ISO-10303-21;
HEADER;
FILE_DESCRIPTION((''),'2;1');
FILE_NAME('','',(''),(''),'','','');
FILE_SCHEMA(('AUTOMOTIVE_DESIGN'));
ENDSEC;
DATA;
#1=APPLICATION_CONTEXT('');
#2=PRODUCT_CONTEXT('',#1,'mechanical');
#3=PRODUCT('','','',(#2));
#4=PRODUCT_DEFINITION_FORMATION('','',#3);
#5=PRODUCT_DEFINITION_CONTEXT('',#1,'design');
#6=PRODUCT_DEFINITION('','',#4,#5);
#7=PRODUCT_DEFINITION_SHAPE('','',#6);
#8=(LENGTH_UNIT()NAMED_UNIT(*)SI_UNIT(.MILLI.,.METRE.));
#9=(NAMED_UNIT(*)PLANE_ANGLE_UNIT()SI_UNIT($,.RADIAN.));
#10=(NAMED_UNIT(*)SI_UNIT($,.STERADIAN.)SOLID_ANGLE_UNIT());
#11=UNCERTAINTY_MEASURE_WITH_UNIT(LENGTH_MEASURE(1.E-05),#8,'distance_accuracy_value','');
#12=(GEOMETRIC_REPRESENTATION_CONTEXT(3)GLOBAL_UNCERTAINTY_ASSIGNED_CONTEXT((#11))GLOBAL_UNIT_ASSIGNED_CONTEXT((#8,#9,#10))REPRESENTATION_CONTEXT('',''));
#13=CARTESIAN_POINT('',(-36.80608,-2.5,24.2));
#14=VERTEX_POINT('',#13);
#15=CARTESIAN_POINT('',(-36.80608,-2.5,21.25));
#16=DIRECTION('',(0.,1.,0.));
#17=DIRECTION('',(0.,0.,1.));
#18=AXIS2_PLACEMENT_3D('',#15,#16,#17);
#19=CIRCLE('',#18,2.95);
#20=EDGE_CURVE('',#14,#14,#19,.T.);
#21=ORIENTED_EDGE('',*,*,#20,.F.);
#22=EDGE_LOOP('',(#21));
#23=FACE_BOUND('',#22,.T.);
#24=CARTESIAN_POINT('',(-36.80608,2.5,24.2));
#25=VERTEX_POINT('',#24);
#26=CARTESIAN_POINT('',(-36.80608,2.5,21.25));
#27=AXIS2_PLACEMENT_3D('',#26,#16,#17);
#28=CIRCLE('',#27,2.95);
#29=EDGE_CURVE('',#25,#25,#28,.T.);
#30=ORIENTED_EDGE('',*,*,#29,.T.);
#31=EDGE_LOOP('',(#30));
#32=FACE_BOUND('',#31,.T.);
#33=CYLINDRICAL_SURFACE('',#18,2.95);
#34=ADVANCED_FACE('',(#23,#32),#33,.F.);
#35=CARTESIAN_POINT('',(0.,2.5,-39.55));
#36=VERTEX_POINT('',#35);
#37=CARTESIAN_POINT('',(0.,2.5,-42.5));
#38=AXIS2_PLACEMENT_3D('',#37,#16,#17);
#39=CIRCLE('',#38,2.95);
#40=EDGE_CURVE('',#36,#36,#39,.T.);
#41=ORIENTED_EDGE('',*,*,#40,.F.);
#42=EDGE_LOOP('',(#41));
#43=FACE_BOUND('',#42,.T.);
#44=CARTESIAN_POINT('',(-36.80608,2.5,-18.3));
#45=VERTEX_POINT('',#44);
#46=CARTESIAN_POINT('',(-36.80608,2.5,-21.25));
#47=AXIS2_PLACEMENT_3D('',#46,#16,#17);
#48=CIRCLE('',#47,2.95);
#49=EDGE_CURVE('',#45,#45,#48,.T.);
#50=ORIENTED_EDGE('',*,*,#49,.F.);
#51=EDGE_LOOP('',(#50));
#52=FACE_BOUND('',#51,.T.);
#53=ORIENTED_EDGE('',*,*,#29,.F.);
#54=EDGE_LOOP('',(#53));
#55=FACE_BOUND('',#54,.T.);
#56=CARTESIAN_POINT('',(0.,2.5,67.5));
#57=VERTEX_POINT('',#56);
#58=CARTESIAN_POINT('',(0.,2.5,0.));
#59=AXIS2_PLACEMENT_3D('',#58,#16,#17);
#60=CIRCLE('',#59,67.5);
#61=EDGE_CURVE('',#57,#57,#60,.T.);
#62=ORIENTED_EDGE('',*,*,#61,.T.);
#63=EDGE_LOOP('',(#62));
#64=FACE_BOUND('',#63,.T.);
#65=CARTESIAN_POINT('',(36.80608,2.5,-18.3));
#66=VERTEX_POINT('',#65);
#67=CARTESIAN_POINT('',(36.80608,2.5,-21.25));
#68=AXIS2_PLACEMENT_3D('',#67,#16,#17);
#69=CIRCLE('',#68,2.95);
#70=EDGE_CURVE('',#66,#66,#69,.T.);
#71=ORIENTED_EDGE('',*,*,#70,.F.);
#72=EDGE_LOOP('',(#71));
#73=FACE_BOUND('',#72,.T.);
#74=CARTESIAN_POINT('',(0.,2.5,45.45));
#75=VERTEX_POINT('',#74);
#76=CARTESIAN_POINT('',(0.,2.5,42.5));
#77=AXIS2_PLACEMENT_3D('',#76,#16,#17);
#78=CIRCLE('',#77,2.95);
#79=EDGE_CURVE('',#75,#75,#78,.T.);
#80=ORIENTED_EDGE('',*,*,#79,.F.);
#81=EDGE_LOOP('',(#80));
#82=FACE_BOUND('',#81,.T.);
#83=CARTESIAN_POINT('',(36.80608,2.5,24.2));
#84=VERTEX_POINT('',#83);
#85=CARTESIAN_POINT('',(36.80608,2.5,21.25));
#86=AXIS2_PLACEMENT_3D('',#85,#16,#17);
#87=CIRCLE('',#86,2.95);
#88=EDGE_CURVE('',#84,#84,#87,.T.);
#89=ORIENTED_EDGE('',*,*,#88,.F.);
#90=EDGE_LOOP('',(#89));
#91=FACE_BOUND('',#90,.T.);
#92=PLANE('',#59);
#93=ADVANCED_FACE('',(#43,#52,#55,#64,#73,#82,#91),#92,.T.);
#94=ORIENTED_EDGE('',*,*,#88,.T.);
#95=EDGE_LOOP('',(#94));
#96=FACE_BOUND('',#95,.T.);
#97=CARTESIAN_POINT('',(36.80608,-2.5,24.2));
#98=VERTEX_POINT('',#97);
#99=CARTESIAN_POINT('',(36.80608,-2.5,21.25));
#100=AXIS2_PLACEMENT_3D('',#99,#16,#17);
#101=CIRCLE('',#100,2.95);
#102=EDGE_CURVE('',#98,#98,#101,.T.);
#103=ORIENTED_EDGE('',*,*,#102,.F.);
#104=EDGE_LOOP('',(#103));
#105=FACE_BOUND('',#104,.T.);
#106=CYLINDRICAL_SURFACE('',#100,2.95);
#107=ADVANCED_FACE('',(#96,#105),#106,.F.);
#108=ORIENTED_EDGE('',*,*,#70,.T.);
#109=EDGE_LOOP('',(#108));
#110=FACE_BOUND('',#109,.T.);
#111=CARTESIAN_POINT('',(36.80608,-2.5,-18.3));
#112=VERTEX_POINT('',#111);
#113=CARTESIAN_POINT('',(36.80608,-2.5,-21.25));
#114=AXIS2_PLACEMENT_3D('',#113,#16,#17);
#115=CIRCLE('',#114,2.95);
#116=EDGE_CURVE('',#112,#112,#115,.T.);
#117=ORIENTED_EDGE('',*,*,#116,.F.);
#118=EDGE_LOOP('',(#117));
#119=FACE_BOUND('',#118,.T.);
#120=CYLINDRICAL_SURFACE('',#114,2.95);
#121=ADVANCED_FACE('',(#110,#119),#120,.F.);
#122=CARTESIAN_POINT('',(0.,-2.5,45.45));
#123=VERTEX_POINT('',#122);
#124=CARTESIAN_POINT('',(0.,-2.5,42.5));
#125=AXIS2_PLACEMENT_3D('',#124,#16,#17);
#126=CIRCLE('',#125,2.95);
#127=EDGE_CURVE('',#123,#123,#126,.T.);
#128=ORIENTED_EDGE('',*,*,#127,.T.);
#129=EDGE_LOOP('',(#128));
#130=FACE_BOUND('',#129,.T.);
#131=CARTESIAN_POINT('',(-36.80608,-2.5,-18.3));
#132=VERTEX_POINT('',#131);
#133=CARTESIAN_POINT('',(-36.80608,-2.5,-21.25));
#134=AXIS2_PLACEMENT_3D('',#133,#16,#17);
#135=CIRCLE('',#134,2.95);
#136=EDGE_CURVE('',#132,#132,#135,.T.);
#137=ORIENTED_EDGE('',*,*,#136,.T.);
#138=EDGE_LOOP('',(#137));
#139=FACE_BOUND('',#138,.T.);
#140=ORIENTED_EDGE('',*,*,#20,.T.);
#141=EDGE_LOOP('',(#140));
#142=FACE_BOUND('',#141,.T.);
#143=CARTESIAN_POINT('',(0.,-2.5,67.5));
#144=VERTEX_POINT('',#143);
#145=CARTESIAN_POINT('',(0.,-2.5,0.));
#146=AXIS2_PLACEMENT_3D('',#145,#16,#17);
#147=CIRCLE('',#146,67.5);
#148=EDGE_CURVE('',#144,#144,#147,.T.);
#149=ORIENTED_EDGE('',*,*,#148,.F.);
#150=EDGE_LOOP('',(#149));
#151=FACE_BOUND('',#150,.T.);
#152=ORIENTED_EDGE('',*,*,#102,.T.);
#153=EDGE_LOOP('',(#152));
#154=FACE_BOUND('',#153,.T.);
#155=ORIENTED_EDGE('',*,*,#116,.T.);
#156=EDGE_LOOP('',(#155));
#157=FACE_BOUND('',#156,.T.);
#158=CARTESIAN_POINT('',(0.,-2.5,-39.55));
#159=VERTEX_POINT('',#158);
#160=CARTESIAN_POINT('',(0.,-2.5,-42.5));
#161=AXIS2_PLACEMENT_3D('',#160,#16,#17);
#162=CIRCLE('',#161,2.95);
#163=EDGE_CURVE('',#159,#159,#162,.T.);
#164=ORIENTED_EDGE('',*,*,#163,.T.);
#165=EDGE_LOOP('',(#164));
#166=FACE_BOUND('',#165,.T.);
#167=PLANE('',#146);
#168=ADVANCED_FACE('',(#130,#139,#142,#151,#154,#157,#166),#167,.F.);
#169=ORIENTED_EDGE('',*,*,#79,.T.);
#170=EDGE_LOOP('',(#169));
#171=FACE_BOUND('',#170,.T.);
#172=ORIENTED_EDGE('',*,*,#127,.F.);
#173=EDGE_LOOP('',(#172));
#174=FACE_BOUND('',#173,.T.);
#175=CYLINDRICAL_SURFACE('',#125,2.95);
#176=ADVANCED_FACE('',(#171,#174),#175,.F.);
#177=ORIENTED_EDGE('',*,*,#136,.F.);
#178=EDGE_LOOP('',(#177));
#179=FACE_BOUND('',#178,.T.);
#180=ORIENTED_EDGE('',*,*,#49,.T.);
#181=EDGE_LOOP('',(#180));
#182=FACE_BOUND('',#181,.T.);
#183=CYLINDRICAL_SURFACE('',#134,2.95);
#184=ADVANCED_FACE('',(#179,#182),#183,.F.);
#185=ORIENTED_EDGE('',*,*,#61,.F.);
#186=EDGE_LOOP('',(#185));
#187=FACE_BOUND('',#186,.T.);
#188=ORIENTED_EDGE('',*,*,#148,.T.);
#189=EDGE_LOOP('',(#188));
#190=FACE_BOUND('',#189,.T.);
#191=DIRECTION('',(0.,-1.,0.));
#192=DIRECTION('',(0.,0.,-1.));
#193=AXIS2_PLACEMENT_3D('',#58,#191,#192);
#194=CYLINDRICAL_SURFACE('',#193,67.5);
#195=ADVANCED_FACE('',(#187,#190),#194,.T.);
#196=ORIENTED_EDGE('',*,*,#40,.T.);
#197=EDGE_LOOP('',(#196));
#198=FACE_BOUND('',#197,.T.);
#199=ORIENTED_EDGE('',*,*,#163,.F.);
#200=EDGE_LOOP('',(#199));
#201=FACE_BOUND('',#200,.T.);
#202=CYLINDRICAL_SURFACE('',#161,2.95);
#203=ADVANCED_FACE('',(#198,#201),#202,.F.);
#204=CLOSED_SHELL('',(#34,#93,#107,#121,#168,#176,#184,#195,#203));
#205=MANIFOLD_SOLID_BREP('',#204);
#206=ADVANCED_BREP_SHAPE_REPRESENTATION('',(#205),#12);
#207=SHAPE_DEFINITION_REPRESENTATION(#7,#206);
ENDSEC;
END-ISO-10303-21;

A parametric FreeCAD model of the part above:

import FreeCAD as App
import Part
import Sketcher
Q = App.Units.Quantity

doc = App.newDocument("Part")
params = doc.addObject("Spreadsheet::Sheet", "Params")
for row, (alias, value) in enumerate([
    ("sketch1_diameter", "135 mm"),
    ("pad1_length", "5 mm"),
    ("sketch2_diameter", "5.9 mm"),
    ("pocket1_length", "5 mm"),
], start=1):
    params.set(f"A{row}", alias)
    params.set(f"B{row}", "=" + value)
    params.setAlias(f"B{row}", alias)

body = doc.addObject("PartDesign::Body", "Body")

sketch1 = body.newObject("Sketcher::SketchObject", "Sketch")
sketch1.AttachmentSupport = (doc.getObject("XZ_Plane"), [""])
sketch1.MapMode = "FlatFace"
sketch1.addGeometry(Part.Circle(App.Vector(0, 0, 0), App.Vector(0, 0, 1), 68), False)
sketch1.addConstraint([
    Sketcher.Constraint("Coincident", 0, 3, -1, 1),
    Sketcher.Constraint("Diameter", 0, Q("135 mm")),
])
sketch1.setExpression("Constraints[1]", "Params.sketch1_diameter")
pad1 = body.newObject("PartDesign::Pad", "Pad")
pad1.Profile = sketch1
pad1.setExpression("Length", "Params.pad1_length")
pad1.Midplane = True

sketch2 = body.newObject("Sketcher::SketchObject", "Sketch001")
sketch2.AttachmentSupport = (doc.getObject("XZ_Plane"), [""])
sketch2.MapMode = "FlatFace"
sketch2.AttachmentOffset = App.Placement(App.Vector(0, 0, -2.5), App.Rotation())
sketch2.addGeometry([
    Part.Circle(App.Vector(0, -42.5, 0), App.Vector(0, 0, 1), 3),
    Part.Circle(App.Vector(36.8, -21.2, 0), App.Vector(0, 0, 1), 3),
    Part.Circle(App.Vector(36.8, 21.2, 0), App.Vector(0, 0, 1), 3),
    Part.Circle(App.Vector(0, 42.5, 0), App.Vector(0, 0, 1), 3),
    Part.Circle(App.Vector(-36.8, 21.2, 0), App.Vector(0, 0, 1), 3),
    Part.Circle(App.Vector(-36.8, -21.2, 0), App.Vector(0, 0, 1), 3),
], False)
sketch2.addConstraint([
    Sketcher.Constraint("Equal", 0, 1),
    Sketcher.Constraint("Equal", 1, 2),
    Sketcher.Constraint("Equal", 2, 3),
    Sketcher.Constraint("Equal", 3, 4),
    Sketcher.Constraint("Equal", 4, 5),
    Sketcher.Constraint("Symmetric", 0, 3, 3, 3, -1, 1),
    Sketcher.Constraint("Symmetric", 1, 3, 4, 3, -1, 1),
    Sketcher.Constraint("Symmetric", 2, 3, 5, 3, -1, 1),
    Sketcher.Constraint("Symmetric", 2, 3, 4, 3, -2),
    Sketcher.Constraint("PointOnObject", 0, 3, -2),
    Sketcher.Constraint("Diameter", 0, Q("5.9 mm")),
    Sketcher.Constraint("DistanceY", 0, 3, 3, 3, Q("85 mm")),
    Sketcher.Constraint("DistanceY", 1, 3, 2, 3, Q("42.5 mm")),
    Sketcher.Constraint("DistanceX", -1, 1, 1, 3, Q("36.80608 mm")),
])
sketch2.setExpression("Constraints[10]", "Params.sketch2_diameter")
pocket1 = body.newObject("PartDesign::Pocket", "Pocket")
pocket1.Profile = sketch2
pocket1.setExpression("Length", "Params.pocket1_length")
pocket1.Reversed = True

doc.recompute()
